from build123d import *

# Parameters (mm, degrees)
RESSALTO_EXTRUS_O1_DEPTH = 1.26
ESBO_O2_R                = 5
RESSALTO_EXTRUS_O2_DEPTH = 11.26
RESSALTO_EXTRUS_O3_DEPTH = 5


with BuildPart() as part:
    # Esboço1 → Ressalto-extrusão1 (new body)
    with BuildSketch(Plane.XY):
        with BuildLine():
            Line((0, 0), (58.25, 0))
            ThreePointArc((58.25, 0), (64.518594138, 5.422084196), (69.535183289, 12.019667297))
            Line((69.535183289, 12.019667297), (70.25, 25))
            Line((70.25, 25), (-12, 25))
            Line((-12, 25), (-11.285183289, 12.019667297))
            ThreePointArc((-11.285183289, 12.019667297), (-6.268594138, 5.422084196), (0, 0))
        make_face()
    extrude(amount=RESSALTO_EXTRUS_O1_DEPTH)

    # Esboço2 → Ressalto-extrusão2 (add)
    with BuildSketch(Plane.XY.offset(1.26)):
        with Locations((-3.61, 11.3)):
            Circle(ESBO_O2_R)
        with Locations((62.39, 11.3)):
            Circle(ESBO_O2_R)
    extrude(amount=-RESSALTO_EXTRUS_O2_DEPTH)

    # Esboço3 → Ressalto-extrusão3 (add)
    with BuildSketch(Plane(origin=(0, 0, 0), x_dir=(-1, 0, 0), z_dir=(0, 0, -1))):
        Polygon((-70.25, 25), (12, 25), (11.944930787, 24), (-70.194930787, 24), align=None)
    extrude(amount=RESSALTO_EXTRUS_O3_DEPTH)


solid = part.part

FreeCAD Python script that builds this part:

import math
import FreeCAD as App
import Part
import Sketcher
from FreeCAD import Vector

doc = App.newDocument("Part")
body = doc.addObject("PartDesign::Body", "Body")

# Sketch on XY plane
sketch1 = body.newObject("Sketcher::SketchObject", "Sketch")
sketch1.AttachmentSupport = (doc.getObject("XY_Plane"), [""])
sketch1.MapMode = "FlatFace"
sketch1.addGeometry([
    Part.LineSegment(Vector(0, 0, 0), Vector(58, 0, 0)),  # 0
    Part.ArcOfCircle(Part.Circle(Vector(35, 33, 0), Vector(0, 0, 1), 40), math.radians(-55), math.radians(-31)),  # 1
    Part.LineSegment(Vector(70, 12, 0), Vector(70, 25, 0)),  # 2
    Part.LineSegment(Vector(70, 25, 0), Vector(-12, 25, 0)),  # 3
    Part.LineSegment(Vector(-12, 25, 0), Vector(-11, 12, 0)),  # 4
    Part.ArcOfCircle(Part.Circle(Vector(23, 33, 0), Vector(0, 0, 1), 40), math.radians(-149), math.radians(-125)),  # 5
], False)
sketch1.addConstraint([
    Sketcher.Constraint("Coincident", 0, 2, 1, 1),
    Sketcher.Constraint("Coincident", 1, 2, 2, 1),
    Sketcher.Constraint("Coincident", 2, 2, 3, 1),
    Sketcher.Constraint("Coincident", 3, 2, 4, 1),
    Sketcher.Constraint("Coincident", 4, 2, 5, 1),
    Sketcher.Constraint("Coincident", 5, 2, 0, 1),
    Sketcher.Constraint("Horizontal", 0),
    Sketcher.Constraint("Horizontal", 3),
    Sketcher.Constraint("Coincident", 5, 2, -1, 1),
    Sketcher.Constraint("Equal", 1, 5),
    Sketcher.Constraint("Horizontal", 1, 3, 5, 3),
    Sketcher.Constraint("Horizontal", 1, 2, 4, 2),
    Sketcher.Constraint("Equal", 2, 4),
    Sketcher.Constraint("Radius", 1, 40.0),
    Sketcher.Constraint("Distance", 2, 13.0),
    Sketcher.Constraint("DistanceY", -1, 1, 2, 2, 25.0),
    Sketcher.Constraint("DistanceX", 3, 2, -1, 1, 12.0),
    Sketcher.Constraint("DistanceX", 0, 1, 0, 2, 58.25),
    Sketcher.Constraint("DistanceX", 1, 3, 1, 2, 34.177799),
])
pad1 = body.newObject("PartDesign::Pad", "Pad")
pad1.Profile = sketch1
pad1.Length = 1.26

# Sketch on XY plane
sketch2 = body.newObject("Sketcher::SketchObject", "Sketch001")
sketch2.AttachmentSupport = (doc.getObject("XY_Plane"), [""])
sketch2.MapMode = "FlatFace"
sketch2.AttachmentOffset = App.Placement(Vector(0, 0, 1.26), App.Rotation())
sketch2.addGeometry([
    Part.Circle(Vector(-4, 11, 0), Vector(0, 0, 1), 5),
    Part.Circle(Vector(62, 11, 0), Vector(0, 0, 1), 5),
], False)
sketch2.addConstraint([
    Sketcher.Constraint("Equal", 0, 1),
    Sketcher.Constraint("Horizontal", 0, 3, 1, 3),
    Sketcher.Constraint("Diameter", 0, 10.0),
    Sketcher.Constraint("DistanceX", 0, 3, 1, 3, 66.0),
    Sketcher.Constraint("DistanceY", -1, 1, 0, 3, 11.3),
    Sketcher.Constraint("DistanceX", 0, 3, -1, 1, 3.61),
])
pad2 = body.newObject("PartDesign::Pad", "Pad001")
pad2.Profile = sketch2
pad2.Length = 11.26
pad2.Reversed = True

# Sketch on XY plane
sketch3 = body.newObject("Sketcher::SketchObject", "Sketch002")
sketch3.AttachmentSupport = (doc.getObject("XY_Plane"), [""])
sketch3.MapMode = "FlatFace"
sketch3.addGeometry([
    Part.LineSegment(Vector(-12, 25, 0), Vector(70.2, 25, 0)),
    Part.LineSegment(Vector(70.2, 25, 0), Vector(70.2, 24, 0)),
    Part.LineSegment(Vector(70.2, 24, 0), Vector(-11.9, 24, 0)),
    Part.LineSegment(Vector(-11.9, 24, 0), Vector(-12, 25, 0)),
], False)
sketch3.addConstraint([
    Sketcher.Constraint("Coincident", 0, 2, 1, 1),
    Sketcher.Constraint("Coincident", 1, 2, 2, 1),
    Sketcher.Constraint("Coincident", 2, 2, 3, 1),
    Sketcher.Constraint("Coincident", 3, 2, 0, 1),
    Sketcher.Constraint("Horizontal", 0),
    Sketcher.Constraint("Horizontal", 2),
    Sketcher.Constraint("Equal", 1, 3),
    Sketcher.Constraint("DistanceY", -1, 1, 0, 2, 25.0),
    Sketcher.Constraint("DistanceY", -1, 1, 1, 2, 24.0),
    Sketcher.Constraint("DistanceX", 3, 2, -1, 1, 12.0),
    Sketcher.Constraint("DistanceX", 0, 1, 0, 2, 82.25),
    Sketcher.Constraint("DistanceX", 2, 2, 2, 1, 82.139862),
])
pad3 = body.newObject("PartDesign::Pad", "Pad002")
pad3.Profile = sketch3
pad3.Length = 5
pad3.Reversed = True

doc.recompute()
